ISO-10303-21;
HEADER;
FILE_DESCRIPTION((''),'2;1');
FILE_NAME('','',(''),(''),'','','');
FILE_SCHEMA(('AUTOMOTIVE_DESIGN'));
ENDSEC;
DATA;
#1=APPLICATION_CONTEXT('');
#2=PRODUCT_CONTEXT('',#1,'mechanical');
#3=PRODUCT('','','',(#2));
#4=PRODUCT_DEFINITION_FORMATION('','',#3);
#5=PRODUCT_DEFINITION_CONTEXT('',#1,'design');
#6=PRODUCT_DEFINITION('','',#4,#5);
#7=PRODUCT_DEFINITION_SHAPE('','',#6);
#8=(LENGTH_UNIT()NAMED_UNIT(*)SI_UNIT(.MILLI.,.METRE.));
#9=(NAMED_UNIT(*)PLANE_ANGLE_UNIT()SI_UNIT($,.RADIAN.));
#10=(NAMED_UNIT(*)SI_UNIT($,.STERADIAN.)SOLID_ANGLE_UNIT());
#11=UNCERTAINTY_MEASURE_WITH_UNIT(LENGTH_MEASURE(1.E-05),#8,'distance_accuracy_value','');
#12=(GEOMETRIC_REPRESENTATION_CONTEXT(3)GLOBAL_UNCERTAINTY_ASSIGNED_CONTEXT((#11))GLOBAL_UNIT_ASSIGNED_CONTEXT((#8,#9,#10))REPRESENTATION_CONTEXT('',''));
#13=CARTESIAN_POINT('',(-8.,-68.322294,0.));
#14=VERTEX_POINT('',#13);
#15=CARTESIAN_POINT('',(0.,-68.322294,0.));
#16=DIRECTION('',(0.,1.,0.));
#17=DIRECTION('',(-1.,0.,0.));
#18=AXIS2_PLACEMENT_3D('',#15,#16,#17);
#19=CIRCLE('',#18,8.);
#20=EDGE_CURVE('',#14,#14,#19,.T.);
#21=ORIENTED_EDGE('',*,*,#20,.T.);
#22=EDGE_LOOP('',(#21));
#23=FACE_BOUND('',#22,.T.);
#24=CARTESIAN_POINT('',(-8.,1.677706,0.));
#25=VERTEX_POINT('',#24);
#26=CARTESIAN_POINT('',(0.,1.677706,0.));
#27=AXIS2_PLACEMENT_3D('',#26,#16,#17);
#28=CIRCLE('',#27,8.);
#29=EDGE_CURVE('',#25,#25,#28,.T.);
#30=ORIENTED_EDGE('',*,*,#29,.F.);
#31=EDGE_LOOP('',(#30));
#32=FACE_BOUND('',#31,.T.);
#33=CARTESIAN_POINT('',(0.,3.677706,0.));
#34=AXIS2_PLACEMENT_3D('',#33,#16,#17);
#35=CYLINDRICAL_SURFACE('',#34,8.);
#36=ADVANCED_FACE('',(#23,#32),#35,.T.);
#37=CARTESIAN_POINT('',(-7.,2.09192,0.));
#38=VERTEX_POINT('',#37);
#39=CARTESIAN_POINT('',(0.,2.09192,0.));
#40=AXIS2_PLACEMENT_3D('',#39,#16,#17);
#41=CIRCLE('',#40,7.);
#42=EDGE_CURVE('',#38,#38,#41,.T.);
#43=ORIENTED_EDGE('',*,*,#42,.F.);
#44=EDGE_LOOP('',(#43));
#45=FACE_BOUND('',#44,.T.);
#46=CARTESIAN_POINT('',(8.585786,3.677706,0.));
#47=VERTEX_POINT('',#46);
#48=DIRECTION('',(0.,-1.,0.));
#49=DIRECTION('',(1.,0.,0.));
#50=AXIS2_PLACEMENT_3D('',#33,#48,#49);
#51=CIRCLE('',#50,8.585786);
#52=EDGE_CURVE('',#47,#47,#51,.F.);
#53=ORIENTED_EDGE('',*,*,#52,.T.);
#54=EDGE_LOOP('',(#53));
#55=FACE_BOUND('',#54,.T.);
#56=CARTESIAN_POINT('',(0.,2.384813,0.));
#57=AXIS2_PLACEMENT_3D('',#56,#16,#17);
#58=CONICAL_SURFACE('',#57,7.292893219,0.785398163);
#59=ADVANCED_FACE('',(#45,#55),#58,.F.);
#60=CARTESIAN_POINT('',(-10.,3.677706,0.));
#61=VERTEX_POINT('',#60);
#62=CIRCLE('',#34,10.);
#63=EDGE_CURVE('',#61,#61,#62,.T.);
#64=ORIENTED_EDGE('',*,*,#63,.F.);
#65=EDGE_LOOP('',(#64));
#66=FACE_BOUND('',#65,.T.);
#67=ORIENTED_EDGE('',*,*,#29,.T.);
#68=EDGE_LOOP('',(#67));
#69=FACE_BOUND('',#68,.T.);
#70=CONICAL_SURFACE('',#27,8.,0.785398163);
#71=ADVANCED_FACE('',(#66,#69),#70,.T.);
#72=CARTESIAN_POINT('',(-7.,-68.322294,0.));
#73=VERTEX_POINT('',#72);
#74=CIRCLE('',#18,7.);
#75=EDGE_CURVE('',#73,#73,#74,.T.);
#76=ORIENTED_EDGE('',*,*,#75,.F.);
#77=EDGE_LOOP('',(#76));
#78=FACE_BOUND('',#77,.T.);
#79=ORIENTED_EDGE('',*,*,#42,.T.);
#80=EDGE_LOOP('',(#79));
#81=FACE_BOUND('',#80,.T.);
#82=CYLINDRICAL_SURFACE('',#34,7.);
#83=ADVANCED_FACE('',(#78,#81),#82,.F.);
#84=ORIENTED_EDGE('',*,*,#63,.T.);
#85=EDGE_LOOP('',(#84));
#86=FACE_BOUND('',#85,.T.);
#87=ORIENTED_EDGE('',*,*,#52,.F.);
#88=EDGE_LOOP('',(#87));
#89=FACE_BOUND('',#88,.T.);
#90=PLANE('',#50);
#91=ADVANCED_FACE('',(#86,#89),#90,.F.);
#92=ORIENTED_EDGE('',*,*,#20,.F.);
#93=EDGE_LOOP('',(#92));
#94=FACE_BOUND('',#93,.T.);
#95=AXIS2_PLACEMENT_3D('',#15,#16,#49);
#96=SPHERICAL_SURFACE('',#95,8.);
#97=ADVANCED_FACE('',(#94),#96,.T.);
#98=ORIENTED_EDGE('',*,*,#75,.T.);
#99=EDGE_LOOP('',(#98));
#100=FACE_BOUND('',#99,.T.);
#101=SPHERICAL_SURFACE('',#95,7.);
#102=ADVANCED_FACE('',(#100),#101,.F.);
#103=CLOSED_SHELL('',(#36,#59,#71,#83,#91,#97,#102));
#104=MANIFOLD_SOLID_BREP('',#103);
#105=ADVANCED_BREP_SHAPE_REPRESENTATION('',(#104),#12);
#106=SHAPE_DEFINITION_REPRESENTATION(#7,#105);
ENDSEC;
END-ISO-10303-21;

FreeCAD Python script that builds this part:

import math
import FreeCAD as App
import Part
import Sketcher
Q = App.Units.Quantity


def faces_at(feature, points):
    """Names of the faces that lie closest to the given points."""
    faces = feature.Shape.Faces
    near = lambda p: min(range(len(faces)), key=lambda i: faces[i].distToShape(Part.Vertex(*p))[0])
    return sorted({f"Face{near(p) + 1}" for p in points})

doc = App.newDocument("Part")
body = doc.addObject("PartDesign::Body", "Body")

sketch1 = body.newObject("Sketcher::SketchObject", "Sketch")
sketch1.AttachmentSupport = (doc.getObject("XY_Plane"), [""])
sketch1.MapMode = "FlatFace"
sketch1.addGeometry([
    Part.LineSegment(App.Vector(10, 3.677706, 0), App.Vector(0, 3.677706, 0)),
    Part.LineSegment(App.Vector(0, 3.677706, 0), App.Vector(0, -76.322294, 0)),
    Part.ArcOfCircle(Part.Circle(App.Vector(0, -68.322294, 0), App.Vector(0, 0, 1), 8), math.radians(-90), math.radians(0)),
    Part.LineSegment(App.Vector(8, -68.322294, 0), App.Vector(8, 1.677706, 0)),
    Part.LineSegment(App.Vector(8, 1.677706, 0), App.Vector(10, 3.677706, 0)),
], False)
sketch1.addConstraint([
    Sketcher.Constraint("Coincident", 0, 2, 1, 1),
    Sketcher.Constraint("Coincident", 1, 2, 2, 1),
    Sketcher.Constraint("Tangent", 2, 2, 3, 1),
    Sketcher.Constraint("Coincident", 3, 2, 4, 1),
    Sketcher.Constraint("Coincident", 4, 2, 0, 1),
    Sketcher.Constraint("Horizontal", 0),
    Sketcher.Constraint("Vertical", 1),
    Sketcher.Constraint("Vertical", 3),
    Sketcher.Constraint("PointOnObject", 2, 3, -2),
    Sketcher.Constraint("PointOnObject", 0, 2, -2),
    Sketcher.Constraint("Radius", 2, Q("8 mm")),
    Sketcher.Constraint("DistanceX", 0, 2, 0, 1, Q("10 mm")),
    Sketcher.Constraint("DistanceY", 1, 2, 1, 1, Q("80 mm")),
    Sketcher.Constraint("DistanceY", 3, 1, 3, 2, Q("70 mm")),
    Sketcher.Constraint("DistanceY", 2, 3, -1, 1, Q("68.322294 mm")),
])
revolution = body.newObject("PartDesign::Revolution", "Revolution")
revolution.Profile = sketch1
revolution.ReferenceAxis = (sketch1, ["V_Axis"])
revolution.Angle = 360
doc.recompute()

thickness = body.newObject("PartDesign::Thickness", "Thickness")
thickness.Base = (revolution, faces_at(revolution, [(0, 3.678, 0)]))
thickness.Value = 1
thickness.Reversed = True
thickness.Join = "Intersection"

doc.recompute()
